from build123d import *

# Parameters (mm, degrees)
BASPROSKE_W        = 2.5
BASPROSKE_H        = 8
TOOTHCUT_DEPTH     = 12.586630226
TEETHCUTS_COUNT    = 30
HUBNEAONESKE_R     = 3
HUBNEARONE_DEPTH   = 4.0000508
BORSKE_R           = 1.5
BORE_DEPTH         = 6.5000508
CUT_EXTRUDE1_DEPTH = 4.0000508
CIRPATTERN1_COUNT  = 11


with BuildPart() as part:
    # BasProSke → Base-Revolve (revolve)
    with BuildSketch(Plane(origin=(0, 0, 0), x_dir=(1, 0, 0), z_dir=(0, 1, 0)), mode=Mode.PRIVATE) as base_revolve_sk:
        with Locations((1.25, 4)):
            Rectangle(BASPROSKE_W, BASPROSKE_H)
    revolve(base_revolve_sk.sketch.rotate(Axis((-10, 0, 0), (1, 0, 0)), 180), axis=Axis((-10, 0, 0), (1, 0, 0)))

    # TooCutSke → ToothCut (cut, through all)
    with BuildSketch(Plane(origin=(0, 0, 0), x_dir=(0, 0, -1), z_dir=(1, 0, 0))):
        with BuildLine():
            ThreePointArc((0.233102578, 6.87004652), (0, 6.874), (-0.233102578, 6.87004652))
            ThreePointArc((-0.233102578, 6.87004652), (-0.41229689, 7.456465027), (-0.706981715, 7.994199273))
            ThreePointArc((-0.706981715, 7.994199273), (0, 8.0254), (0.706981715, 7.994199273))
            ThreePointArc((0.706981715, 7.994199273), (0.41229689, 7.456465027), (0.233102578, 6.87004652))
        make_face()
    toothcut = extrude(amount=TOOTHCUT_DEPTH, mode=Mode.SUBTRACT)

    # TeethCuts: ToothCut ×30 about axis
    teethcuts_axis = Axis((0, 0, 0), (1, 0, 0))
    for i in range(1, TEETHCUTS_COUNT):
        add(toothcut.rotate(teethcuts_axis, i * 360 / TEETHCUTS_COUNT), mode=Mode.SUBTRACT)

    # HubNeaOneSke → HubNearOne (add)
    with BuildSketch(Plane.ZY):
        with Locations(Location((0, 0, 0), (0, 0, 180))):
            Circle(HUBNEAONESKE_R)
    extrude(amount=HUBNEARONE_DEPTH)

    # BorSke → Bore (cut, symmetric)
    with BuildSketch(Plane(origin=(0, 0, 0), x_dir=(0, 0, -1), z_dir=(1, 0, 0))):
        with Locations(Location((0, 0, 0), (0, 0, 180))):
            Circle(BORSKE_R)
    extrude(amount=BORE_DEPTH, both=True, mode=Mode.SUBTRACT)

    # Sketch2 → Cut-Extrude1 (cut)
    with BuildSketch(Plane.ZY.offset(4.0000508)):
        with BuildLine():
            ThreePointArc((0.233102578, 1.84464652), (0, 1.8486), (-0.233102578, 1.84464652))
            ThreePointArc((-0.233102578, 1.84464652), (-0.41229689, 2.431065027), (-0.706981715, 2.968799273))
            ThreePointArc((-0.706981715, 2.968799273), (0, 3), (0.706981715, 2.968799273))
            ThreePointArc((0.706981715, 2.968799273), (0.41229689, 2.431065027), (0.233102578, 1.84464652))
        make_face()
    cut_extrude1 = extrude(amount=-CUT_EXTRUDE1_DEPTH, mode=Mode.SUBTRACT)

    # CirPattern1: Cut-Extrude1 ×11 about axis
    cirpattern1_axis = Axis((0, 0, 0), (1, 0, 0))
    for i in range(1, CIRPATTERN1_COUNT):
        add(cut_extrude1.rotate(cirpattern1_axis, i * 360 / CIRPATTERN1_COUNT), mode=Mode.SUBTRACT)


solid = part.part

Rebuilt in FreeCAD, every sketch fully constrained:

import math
import FreeCAD as App
import Part
import Sketcher

V = App.Vector
Q = App.Units.Quantity


def add_polygon(sketch, points):
    """Adds a closed chain of lines whose ends are joined by coincident constraints."""
    first, n = sketch.GeometryCount, len(points)
    for a, b in zip(points, points[1:] + points[:1]):
        sketch.addGeometry(Part.LineSegment(App.Vector(*a, 0), App.Vector(*b, 0)), False)
    for i in range(n):
        sketch.addConstraint(Sketcher.Constraint("Coincident", first + i, 2, first + (i + 1) % n, 1))

doc = App.newDocument("Part")
body = doc.addObject("PartDesign::Body", "Body")

# Sketch on XZ plane
sketch1 = doc.addObject("Sketcher::SketchObject", "Sketch")
body.addObject(sketch1)
sketch1.AttachmentSupport = (doc.XZ_Plane, [""])
sketch1.MapMode = "FlatFace"
add_polygon(sketch1, [(0, -8), (0, 0), (2.5, 0), (2.5, -8)])  # lines 0-3
sketch1.addConstraint(Sketcher.Constraint("Vertical", 0))
sketch1.addConstraint(Sketcher.Constraint("Horizontal", 1))
sketch1.addConstraint(Sketcher.Constraint("Vertical", 2))
sketch1.addConstraint(Sketcher.Constraint("Horizontal", 3))
sketch1.addConstraint(Sketcher.Constraint("Coincident", 0, 2, -1, 1))
sketch1.addConstraint(Sketcher.Constraint("DistanceY", 0, 1, 0, 2, Q("8 mm")))
sketch1.addConstraint(Sketcher.Constraint("DistanceX", 1, 1, 1, 2, Q("2.5 mm")))
revolution = doc.addObject("PartDesign::Revolution", "Revolution")
body.addObject(revolution)
revolution.Profile = sketch1
revolution.ReferenceAxis = (sketch1, ["H_Axis"])
revolution.Angle = 360

# Sketch on YZ plane
sketch2 = doc.addObject("Sketcher::SketchObject", "Sketch001")
body.addObject(sketch2)
sketch2.AttachmentSupport = (doc.YZ_Plane, [""])
sketch2.MapMode = "FlatFace"
sketch2.addGeometry(Part.ArcOfCircle(Part.Circle(V(0, 0, 0), V(0, 0, 1), 6.87), math.radians(-1.94), math.radians(1.94)), False)
sketch2.addGeometry(Part.ArcOfCircle(Part.Circle(V(6.29, -3.18, 0), V(0, 0, 1), 3), math.radians(55), math.radians(79)), False)
sketch2.addGeometry(Part.ArcOfCircle(Part.Circle(V(0, 0, 0), V(0, 0, 1), 8.03), math.radians(-5.05), math.radians(5.05)), False)
sketch2.addGeometry(Part.ArcOfCircle(Part.Circle(V(6.29, 3.18, 0), V(0, 0, 1), 3), math.radians(-79), math.radians(-55)), False)
sketch2.addConstraint(Sketcher.Constraint("Coincident", 0, 1, 1, 2))
sketch2.addConstraint(Sketcher.Constraint("Coincident", 1, 1, 2, 1))
sketch2.addConstraint(Sketcher.Constraint("Coincident", 2, 2, 3, 2))
sketch2.addConstraint(Sketcher.Constraint("Coincident", 3, 1, 0, 2))
sketch2.addConstraint(Sketcher.Constraint("Coincident", 0, 3, -1, 1))
sketch2.addConstraint(Sketcher.Constraint("Coincident", 2, 3, -1, 1))
sketch2.addConstraint(Sketcher.Constraint("Equal", 1, 3))
sketch2.addConstraint(Sketcher.Constraint("Symmetric", 1, 3, 3, 3, -1))
sketch2.addConstraint(Sketcher.Constraint("Radius", 1, Q("3 mm")))
sketch2.addConstraint(Sketcher.Constraint("Radius", 0, Q("6.874 mm")))
sketch2.addConstraint(Sketcher.Constraint("Radius", 2, Q("8.0254 mm")))
sketch2.addConstraint(Sketcher.Constraint("DistanceX", -1, 1, 1, 1, Q("7.994199 mm")))
sketch2.addConstraint(Sketcher.Constraint("DistanceY", 1, 1, 3, 3, Q("3.883699 mm")))
pocket1 = doc.addObject("PartDesign::Pocket", "Pocket")
body.addObject(pocket1)
pocket1.Profile = sketch2
pocket1.Type = "ThroughAll"
pocket1.Reversed = True
doc.recompute()

polarpattern = doc.addObject("PartDesign::PolarPattern", "PolarPattern")
body.addObject(polarpattern)
polarpattern.Originals = [pocket1]
polarpattern.Axis = (doc.X_Axis, [""])
polarpattern.Angle = 360
polarpattern.Occurrences = 30
body.Tip = polarpattern

# Sketch on YZ plane
sketch3 = doc.addObject("Sketcher::SketchObject", "Sketch002")
body.addObject(sketch3)
sketch3.AttachmentSupport = (doc.YZ_Plane, [""])
sketch3.MapMode = "FlatFace"
sketch3.addGeometry(Part.Circle(V(0, 0, 0), V(0, 0, 1), 3), False)
sketch3.addConstraint(Sketcher.Constraint("Coincident", 0, 3, -1, 1))
sketch3.addConstraint(Sketcher.Constraint("Diameter", 0, Q("6 mm")))
pad1 = doc.addObject("PartDesign::Pad", "Pad")
body.addObject(pad1)
pad1.Profile = sketch3
pad1.Length = 4.000051
pad1.Reversed = True

# Sketch on YZ plane
sketch4 = doc.addObject("Sketcher::SketchObject", "Sketch003")
body.addObject(sketch4)
sketch4.AttachmentSupport = (doc.YZ_Plane, [""])
sketch4.MapMode = "FlatFace"
sketch4.addGeometry(Part.Circle(V(0, 0, 0), V(0, 0, 1), 1.5), False)
sketch4.addConstraint(Sketcher.Constraint("Coincident", 0, 3, -1, 1))
sketch4.addConstraint(Sketcher.Constraint("Diameter", 0, Q("3 mm")))
pocket2 = doc.addObject("PartDesign::Pocket", "Pocket001")
body.addObject(pocket2)
pocket2.Profile = sketch4
pocket2.Length = 13.000102
pocket2.Midplane = True

# Sketch on YZ plane
sketch5 = doc.addObject("Sketcher::SketchObject", "Sketch004")
body.addObject(sketch5)
sketch5.AttachmentSupport = (doc.YZ_Plane, [""])
sketch5.MapMode = "FlatFace"
sketch5.AttachmentOffset = App.Placement(V(0, 0, -4.000051), App.Rotation())
sketch5.addGeometry(Part.ArcOfCircle(Part.Circle(V(-5.03, 0, 0), V(0, 0, 1), 6.87), math.radians(-1.94), math.radians(1.94)), False)
sketch5.addGeometry(Part.ArcOfCircle(Part.Circle(V(1.27, 3.18, 0), V(0, 0, 1), 3), math.radians(-79), math.radians(-55)), False)
sketch5.addGeometry(Part.ArcOfCircle(Part.Circle(V(-5.03, 0, 0), V(0, 0, 1), 8.03), math.radians(-5.05), math.radians(5.05)), False)
sketch5.addGeometry(Part.ArcOfCircle(Part.Circle(V(1.27, -3.18, 0), V(0, 0, 1), 3), math.radians(55), math.radians(79)), False)
sketch5.addConstraint(Sketcher.Constraint("Coincident", 0, 2, 1, 1))
sketch5.addConstraint(Sketcher.Constraint("Coincident", 1, 2, 2, 2))
sketch5.addConstraint(Sketcher.Constraint("Coincident", 2, 1, 3, 1))
sketch5.addConstraint(Sketcher.Constraint("Coincident", 3, 2, 0, 1))
sketch5.addConstraint(Sketcher.Constraint("Coincident", 2, 3, 0, 3))
sketch5.addConstraint(Sketcher.Constraint("Equal", 1, 3))
sketch5.addConstraint(Sketcher.Constraint("Symmetric", 1, 3, 3, 3, -1))
sketch5.addConstraint(Sketcher.Constraint("PointOnObject", 0, 3, -1))
sketch5.addConstraint(Sketcher.Constraint("Radius", 1, Q("3 mm")))
sketch5.addConstraint(Sketcher.Constraint("Radius", 0, Q("6.874 mm")))
sketch5.addConstraint(Sketcher.Constraint("Radius", 2, Q("8.0254 mm")))
sketch5.addConstraint(Sketcher.Constraint("DistanceX", 0, 3, -1, 1, Q("5.0254 mm")))
sketch5.addConstraint(Sketcher.Constraint("DistanceX", -1, 1, 1, 2, Q("2.968799 mm")))
sketch5.addConstraint(Sketcher.Constraint("DistanceY", 3, 3, 1, 2, Q("3.883699 mm")))
pocket3 = doc.addObject("PartDesign::Pocket", "Pocket002")
body.addObject(pocket3)
pocket3.Profile = sketch5
pocket3.Length = 4.000051
pocket3.Reversed = True
doc.recompute()

polarpattern2 = doc.addObject("PartDesign::PolarPattern", "PolarPattern001")
body.addObject(polarpattern2)
polarpattern2.Originals = [pocket3]
polarpattern2.Axis = (doc.X_Axis, [""])
polarpattern2.Angle = 360
polarpattern2.Occurrences = 11
body.Tip = polarpattern2

doc.recompute()
